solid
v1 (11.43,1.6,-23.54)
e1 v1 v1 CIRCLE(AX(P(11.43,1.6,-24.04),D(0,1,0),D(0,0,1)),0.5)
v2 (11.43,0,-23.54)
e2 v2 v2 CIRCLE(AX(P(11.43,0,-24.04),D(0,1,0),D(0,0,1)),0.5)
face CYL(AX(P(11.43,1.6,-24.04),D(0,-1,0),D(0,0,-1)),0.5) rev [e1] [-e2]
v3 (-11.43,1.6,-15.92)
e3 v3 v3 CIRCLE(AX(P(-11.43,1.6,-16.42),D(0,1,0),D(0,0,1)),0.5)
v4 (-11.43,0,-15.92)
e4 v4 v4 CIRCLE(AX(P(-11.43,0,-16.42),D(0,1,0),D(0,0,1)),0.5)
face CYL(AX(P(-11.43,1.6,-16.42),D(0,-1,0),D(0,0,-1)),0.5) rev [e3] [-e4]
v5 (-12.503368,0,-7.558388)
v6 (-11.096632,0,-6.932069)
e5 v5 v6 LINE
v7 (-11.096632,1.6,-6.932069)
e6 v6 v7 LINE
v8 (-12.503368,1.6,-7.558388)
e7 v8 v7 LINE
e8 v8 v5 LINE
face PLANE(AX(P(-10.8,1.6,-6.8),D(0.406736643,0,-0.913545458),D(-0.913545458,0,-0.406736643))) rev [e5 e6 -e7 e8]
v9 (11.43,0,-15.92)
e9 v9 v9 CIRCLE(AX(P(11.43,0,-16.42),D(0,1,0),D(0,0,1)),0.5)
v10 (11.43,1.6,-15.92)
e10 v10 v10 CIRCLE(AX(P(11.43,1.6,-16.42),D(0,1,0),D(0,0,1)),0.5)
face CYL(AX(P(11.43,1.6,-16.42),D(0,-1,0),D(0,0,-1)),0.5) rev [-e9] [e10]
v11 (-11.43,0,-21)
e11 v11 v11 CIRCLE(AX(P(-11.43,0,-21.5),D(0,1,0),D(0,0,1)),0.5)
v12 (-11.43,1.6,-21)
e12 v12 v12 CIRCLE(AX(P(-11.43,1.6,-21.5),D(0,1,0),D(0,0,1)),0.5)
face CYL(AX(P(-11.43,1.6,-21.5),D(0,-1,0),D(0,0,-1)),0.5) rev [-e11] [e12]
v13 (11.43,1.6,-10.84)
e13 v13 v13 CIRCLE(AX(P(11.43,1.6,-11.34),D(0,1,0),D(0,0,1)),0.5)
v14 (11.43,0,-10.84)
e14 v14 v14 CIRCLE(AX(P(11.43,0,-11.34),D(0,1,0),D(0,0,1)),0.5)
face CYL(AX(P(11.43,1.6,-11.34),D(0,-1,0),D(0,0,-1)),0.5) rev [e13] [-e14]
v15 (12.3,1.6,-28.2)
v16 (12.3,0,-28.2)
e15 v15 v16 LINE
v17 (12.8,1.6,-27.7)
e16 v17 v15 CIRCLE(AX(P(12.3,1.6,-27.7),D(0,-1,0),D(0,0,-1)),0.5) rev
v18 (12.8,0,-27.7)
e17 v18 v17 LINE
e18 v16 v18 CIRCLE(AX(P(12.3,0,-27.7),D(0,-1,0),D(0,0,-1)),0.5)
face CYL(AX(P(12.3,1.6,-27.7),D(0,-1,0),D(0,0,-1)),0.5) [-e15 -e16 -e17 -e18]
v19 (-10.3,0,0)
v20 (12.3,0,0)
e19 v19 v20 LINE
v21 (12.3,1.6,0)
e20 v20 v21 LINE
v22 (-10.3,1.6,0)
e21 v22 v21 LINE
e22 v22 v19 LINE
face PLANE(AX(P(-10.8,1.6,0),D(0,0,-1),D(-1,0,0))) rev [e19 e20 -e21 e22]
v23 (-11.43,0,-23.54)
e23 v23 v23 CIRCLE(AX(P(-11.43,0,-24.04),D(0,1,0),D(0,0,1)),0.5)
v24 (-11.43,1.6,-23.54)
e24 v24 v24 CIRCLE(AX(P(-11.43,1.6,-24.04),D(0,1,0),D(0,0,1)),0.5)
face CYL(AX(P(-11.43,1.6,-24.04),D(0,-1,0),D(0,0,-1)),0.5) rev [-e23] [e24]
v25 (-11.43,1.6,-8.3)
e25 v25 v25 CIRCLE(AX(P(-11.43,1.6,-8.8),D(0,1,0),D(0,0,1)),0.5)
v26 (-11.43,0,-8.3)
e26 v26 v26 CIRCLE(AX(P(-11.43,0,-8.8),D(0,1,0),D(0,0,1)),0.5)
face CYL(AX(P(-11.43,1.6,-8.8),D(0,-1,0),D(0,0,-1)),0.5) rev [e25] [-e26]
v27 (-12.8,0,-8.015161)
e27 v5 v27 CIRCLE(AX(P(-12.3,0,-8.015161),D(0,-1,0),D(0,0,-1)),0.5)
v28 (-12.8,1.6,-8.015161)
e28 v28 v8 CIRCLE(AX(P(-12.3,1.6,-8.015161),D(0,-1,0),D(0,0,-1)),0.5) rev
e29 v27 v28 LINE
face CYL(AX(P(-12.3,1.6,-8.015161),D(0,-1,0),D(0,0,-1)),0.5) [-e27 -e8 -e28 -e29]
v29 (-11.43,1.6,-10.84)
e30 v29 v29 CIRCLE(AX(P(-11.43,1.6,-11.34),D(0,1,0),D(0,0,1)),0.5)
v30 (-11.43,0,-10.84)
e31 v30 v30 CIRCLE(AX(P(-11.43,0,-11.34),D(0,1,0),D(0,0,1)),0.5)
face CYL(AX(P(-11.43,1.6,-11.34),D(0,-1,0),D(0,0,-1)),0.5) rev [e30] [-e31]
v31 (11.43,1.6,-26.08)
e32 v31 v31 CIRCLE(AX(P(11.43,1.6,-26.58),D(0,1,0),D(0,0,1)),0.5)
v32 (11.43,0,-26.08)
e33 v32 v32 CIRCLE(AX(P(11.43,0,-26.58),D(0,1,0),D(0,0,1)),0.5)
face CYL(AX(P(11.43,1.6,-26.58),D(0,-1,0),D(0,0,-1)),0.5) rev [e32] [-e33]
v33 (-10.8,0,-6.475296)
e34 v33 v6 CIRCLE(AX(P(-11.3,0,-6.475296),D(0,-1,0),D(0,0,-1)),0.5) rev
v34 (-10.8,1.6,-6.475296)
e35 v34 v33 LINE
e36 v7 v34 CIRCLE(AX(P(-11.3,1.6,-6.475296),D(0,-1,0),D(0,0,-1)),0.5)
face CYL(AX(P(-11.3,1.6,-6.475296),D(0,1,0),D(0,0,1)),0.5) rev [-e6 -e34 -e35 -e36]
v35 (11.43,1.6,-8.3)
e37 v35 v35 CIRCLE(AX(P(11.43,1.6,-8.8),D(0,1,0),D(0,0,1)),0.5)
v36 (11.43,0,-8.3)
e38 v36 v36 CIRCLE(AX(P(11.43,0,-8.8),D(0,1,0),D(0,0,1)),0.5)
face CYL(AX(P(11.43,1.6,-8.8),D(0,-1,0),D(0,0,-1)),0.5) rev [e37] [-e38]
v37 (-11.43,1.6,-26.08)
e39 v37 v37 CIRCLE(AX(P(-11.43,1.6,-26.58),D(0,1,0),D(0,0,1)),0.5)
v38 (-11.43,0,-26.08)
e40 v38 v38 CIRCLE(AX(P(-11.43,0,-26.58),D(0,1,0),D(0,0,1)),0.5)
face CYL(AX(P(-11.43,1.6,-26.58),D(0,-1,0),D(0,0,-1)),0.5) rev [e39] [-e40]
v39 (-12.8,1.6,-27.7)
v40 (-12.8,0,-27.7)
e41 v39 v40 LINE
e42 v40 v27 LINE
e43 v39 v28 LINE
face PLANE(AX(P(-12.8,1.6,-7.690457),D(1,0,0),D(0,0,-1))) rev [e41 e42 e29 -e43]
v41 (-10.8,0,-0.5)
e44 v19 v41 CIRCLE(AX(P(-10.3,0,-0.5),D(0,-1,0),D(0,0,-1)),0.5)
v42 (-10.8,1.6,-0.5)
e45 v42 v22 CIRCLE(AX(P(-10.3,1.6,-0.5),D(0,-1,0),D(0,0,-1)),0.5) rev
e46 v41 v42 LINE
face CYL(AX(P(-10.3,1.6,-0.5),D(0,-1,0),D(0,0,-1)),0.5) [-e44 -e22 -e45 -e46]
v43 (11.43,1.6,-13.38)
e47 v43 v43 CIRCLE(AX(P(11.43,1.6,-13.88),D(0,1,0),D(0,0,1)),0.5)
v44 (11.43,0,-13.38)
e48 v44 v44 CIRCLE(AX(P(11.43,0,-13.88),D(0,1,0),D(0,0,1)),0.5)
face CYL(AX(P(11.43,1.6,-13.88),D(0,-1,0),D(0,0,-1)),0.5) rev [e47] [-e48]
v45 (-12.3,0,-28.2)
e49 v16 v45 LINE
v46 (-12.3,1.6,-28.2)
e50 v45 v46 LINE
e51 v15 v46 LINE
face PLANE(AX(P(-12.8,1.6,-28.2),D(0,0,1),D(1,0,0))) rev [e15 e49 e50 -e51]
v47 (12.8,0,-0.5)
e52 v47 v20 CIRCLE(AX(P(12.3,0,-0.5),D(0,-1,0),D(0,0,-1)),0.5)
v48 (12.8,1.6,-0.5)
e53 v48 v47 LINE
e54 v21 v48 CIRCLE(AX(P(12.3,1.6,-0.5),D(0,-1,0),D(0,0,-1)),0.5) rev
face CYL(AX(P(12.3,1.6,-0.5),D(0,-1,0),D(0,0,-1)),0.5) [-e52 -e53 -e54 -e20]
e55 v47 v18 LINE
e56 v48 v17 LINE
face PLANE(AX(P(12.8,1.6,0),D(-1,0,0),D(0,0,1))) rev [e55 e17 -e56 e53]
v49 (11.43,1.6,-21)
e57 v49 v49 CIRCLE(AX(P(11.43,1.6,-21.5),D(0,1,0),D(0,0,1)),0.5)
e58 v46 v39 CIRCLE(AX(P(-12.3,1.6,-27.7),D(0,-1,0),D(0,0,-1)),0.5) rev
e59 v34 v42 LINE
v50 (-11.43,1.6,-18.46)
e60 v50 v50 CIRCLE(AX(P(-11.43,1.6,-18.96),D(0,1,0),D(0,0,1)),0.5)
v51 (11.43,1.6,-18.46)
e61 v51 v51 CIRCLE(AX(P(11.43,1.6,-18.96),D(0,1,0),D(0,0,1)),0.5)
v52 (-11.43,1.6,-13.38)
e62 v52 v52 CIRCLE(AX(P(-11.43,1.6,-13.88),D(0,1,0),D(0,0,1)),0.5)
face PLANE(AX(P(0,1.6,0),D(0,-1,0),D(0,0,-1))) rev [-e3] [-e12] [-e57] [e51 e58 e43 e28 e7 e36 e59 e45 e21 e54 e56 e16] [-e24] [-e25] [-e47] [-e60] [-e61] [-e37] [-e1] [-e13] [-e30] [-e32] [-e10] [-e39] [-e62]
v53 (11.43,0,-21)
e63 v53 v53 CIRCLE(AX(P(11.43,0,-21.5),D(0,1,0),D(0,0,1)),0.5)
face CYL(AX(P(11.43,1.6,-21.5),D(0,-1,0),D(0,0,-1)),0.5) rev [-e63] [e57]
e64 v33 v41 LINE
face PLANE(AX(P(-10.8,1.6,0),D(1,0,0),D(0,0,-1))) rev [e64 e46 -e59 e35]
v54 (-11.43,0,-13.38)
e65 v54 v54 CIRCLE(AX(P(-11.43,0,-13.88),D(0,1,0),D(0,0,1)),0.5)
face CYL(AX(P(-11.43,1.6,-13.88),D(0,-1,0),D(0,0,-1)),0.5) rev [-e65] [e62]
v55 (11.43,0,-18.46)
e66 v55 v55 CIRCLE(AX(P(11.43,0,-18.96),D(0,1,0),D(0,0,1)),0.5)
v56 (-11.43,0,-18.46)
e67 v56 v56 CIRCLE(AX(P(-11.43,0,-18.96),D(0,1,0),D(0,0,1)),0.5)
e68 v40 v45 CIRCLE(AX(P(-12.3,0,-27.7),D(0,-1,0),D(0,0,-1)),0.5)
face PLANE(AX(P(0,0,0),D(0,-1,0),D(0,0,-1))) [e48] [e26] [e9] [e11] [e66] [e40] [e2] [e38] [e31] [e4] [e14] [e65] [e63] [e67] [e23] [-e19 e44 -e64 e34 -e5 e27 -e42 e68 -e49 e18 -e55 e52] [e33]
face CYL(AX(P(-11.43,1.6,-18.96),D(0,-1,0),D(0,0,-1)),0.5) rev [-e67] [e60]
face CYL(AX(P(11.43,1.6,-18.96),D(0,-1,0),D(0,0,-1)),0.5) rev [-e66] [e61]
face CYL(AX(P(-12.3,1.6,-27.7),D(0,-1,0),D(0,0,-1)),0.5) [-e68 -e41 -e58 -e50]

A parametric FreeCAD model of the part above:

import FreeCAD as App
import Part
import Sketcher
Q = App.Units.Quantity


def edges_at(feature, points):
    """Names of the edges that pass closest to the given points."""
    edges = feature.Shape.Edges
    near = lambda p: min(range(len(edges)), key=lambda i: edges[i].distToShape(Part.Vertex(*p))[0])
    return sorted({f"Edge{near(p) + 1}" for p in points})

doc = App.newDocument("Part")
body = doc.addObject("PartDesign::Body", "Body")

sketch1 = doc.addObject("Sketcher::SketchObject", "Sketch")
body.addObject(sketch1)
sketch1.AttachmentSupport = (doc.XZ_Plane, [""])
sketch1.MapMode = "FlatFace"
sketch1.addGeometry([
    Part.LineSegment(App.Vector(-12.8, -28.2, 0), App.Vector(-12.8, -7.7, 0)),
    Part.LineSegment(App.Vector(-12.8, -7.7, 0), App.Vector(-10.8, -6.8, 0)),
    Part.LineSegment(App.Vector(-10.8, -6.8, 0), App.Vector(-10.8, 0, 0)),
    Part.LineSegment(App.Vector(-10.8, 0, 0), App.Vector(12.8, 0, 0)),
    Part.LineSegment(App.Vector(12.8, 0, 0), App.Vector(12.8, -28.2, 0)),
    Part.LineSegment(App.Vector(12.8, -28.2, 0), App.Vector(-12.8, -28.2, 0)),
    Part.Circle(App.Vector(11.4, -8.8, 0), App.Vector(0, 0, 1), 0.5),
    Part.Circle(App.Vector(11.4, -11.3, 0), App.Vector(0, 0, 1), 0.5),
    Part.Circle(App.Vector(11.4, -13.9, 0), App.Vector(0, 0, 1), 0.5),
    Part.Circle(App.Vector(11.4, -16.4, 0), App.Vector(0, 0, 1), 0.5),
    Part.Circle(App.Vector(-11.4, -8.8, 0), App.Vector(0, 0, 1), 0.5),
    Part.Circle(App.Vector(-11.4, -11.3, 0), App.Vector(0, 0, 1), 0.5),
    Part.Circle(App.Vector(-11.4, -13.9, 0), App.Vector(0, 0, 1), 0.5),
    Part.Circle(App.Vector(-11.4, -16.4, 0), App.Vector(0, 0, 1), 0.5),
    Part.Circle(App.Vector(11.4, -19, 0), App.Vector(0, 0, 1), 0.5),
    Part.Circle(App.Vector(11.4, -21.5, 0), App.Vector(0, 0, 1), 0.5),
    Part.Circle(App.Vector(11.4, -24, 0), App.Vector(0, 0, 1), 0.5),
    Part.Circle(App.Vector(11.4, -26.6, 0), App.Vector(0, 0, 1), 0.5),
    Part.Circle(App.Vector(-11.4, -19, 0), App.Vector(0, 0, 1), 0.5),
    Part.Circle(App.Vector(-11.4, -21.5, 0), App.Vector(0, 0, 1), 0.5),
    Part.Circle(App.Vector(-11.4, -24, 0), App.Vector(0, 0, 1), 0.5),
    Part.Circle(App.Vector(-11.4, -26.6, 0), App.Vector(0, 0, 1), 0.5),
], False)
sketch1.addConstraint([
    Sketcher.Constraint("Coincident", 0, 2, 1, 1),
    Sketcher.Constraint("Coincident", 1, 2, 2, 1),
    Sketcher.Constraint("Coincident", 2, 2, 3, 1),
    Sketcher.Constraint("Coincident", 3, 2, 4, 1),
    Sketcher.Constraint("Coincident", 4, 2, 5, 1),
    Sketcher.Constraint("Coincident", 5, 2, 0, 1),
    Sketcher.Constraint("Vertical", 0),
    Sketcher.Constraint("Vertical", 2),
    Sketcher.Constraint("Horizontal", 3),
    Sketcher.Constraint("Vertical", 4),
    Sketcher.Constraint("Horizontal", 5),
    Sketcher.Constraint("Equal", 6, 7),
    Sketcher.Constraint("Equal", 7, 8),
    Sketcher.Constraint("Equal", 8, 9),
    Sketcher.Constraint("Equal", 9, 10),
    Sketcher.Constraint("Equal", 10, 11),
    Sketcher.Constraint("Equal", 11, 12),
    Sketcher.Constraint("Equal", 12, 13),
    Sketcher.Constraint("Equal", 13, 14),
    Sketcher.Constraint("Equal", 14, 15),
    Sketcher.Constraint("Equal", 15, 16),
    Sketcher.Constraint("Equal", 16, 17),
    Sketcher.Constraint("Equal", 17, 18),
    Sketcher.Constraint("Equal", 18, 19),
    Sketcher.Constraint("Equal", 19, 20),
    Sketcher.Constraint("Equal", 20, 21),
    Sketcher.Constraint("Symmetric", 6, 3, 10, 3, -2),
    Sketcher.Constraint("Symmetric", 7, 3, 11, 3, -2),
    Sketcher.Constraint("Symmetric", 8, 3, 12, 3, -2),
    Sketcher.Constraint("Symmetric", 9, 3, 13, 3, -2),
    Sketcher.Constraint("Symmetric", 14, 3, 18, 3, -2),
    Sketcher.Constraint("Symmetric", 15, 3, 19, 3, -2),
    Sketcher.Constraint("Symmetric", 16, 3, 20, 3, -2),
    Sketcher.Constraint("Symmetric", 17, 3, 21, 3, -2),
    Sketcher.Constraint("PointOnObject", 2, 2, -1),
    Sketcher.Constraint("Vertical", 6, 3, 7, 3),
    Sketcher.Constraint("Vertical", 7, 3, 8, 3),
    Sketcher.Constraint("Vertical", 8, 3, 9, 3),
    Sketcher.Constraint("Vertical", 9, 3, 14, 3),
    Sketcher.Constraint("Vertical", 14, 3, 15, 3),
    Sketcher.Constraint("Vertical", 15, 3, 16, 3),
    Sketcher.Constraint("Vertical", 16, 3, 17, 3),
    Sketcher.Constraint("Diameter", 6, 1.0),
    Sketcher.Constraint("Angle", 1, Q("24 deg")),
    Sketcher.Constraint("DistanceX", 3, 1, 3, 2, 23.6),
    Sketcher.Constraint("DistanceX", 5, 2, 5, 1, 25.6),
    Sketcher.Constraint("DistanceY", 2, 1, 2, 2, 6.8),
    Sketcher.Constraint("DistanceY", 4, 2, 4, 1, 28.2),
    Sketcher.Constraint("DistanceY", 10, 3, 1, 2, 2.0),
    Sketcher.Constraint("DistanceY", 15, 3, -1, 1, 21.5),
    Sketcher.Constraint("DistanceX", 0, 2, -1, 1, 12.8),
    Sketcher.Constraint("DistanceY", 16, 3, 7, 3, 12.7),
    Sketcher.Constraint("DistanceY", 17, 3, 8, 3, 12.7),
    Sketcher.Constraint("DistanceX", -1, 1, 6, 3, 11.43),
    Sketcher.Constraint("DistanceY", 7, 3, -1, 1, 11.34),
    Sketcher.Constraint("DistanceY", 8, 3, -1, 1, 13.88),
    Sketcher.Constraint("DistanceY", 9, 3, -1, 1, 16.42),
    Sketcher.Constraint("DistanceY", 14, 3, -1, 1, 18.96),
])
pad1 = doc.addObject("PartDesign::Pad", "Pad")
body.addObject(pad1)
pad1.Profile = sketch1
pad1.Length = 1.6
pad1.Reversed = True
doc.recompute()

fillet = doc.addObject("PartDesign::Fillet", "Fillet")
body.addObject(fillet)
fillet.Base = (pad1, edges_at(pad1, [
    (12.8, 0.8, 0),
    (-10.8, 0.8, 0),
    (-10.8, 0.8, -6.8),
    (-12.8, 0.8, -7.69),
    (-12.8, 0.8, -28.2),
    (12.8, 0.8, -28.2),
]))
fillet.Radius = 0.5

doc.recompute()
